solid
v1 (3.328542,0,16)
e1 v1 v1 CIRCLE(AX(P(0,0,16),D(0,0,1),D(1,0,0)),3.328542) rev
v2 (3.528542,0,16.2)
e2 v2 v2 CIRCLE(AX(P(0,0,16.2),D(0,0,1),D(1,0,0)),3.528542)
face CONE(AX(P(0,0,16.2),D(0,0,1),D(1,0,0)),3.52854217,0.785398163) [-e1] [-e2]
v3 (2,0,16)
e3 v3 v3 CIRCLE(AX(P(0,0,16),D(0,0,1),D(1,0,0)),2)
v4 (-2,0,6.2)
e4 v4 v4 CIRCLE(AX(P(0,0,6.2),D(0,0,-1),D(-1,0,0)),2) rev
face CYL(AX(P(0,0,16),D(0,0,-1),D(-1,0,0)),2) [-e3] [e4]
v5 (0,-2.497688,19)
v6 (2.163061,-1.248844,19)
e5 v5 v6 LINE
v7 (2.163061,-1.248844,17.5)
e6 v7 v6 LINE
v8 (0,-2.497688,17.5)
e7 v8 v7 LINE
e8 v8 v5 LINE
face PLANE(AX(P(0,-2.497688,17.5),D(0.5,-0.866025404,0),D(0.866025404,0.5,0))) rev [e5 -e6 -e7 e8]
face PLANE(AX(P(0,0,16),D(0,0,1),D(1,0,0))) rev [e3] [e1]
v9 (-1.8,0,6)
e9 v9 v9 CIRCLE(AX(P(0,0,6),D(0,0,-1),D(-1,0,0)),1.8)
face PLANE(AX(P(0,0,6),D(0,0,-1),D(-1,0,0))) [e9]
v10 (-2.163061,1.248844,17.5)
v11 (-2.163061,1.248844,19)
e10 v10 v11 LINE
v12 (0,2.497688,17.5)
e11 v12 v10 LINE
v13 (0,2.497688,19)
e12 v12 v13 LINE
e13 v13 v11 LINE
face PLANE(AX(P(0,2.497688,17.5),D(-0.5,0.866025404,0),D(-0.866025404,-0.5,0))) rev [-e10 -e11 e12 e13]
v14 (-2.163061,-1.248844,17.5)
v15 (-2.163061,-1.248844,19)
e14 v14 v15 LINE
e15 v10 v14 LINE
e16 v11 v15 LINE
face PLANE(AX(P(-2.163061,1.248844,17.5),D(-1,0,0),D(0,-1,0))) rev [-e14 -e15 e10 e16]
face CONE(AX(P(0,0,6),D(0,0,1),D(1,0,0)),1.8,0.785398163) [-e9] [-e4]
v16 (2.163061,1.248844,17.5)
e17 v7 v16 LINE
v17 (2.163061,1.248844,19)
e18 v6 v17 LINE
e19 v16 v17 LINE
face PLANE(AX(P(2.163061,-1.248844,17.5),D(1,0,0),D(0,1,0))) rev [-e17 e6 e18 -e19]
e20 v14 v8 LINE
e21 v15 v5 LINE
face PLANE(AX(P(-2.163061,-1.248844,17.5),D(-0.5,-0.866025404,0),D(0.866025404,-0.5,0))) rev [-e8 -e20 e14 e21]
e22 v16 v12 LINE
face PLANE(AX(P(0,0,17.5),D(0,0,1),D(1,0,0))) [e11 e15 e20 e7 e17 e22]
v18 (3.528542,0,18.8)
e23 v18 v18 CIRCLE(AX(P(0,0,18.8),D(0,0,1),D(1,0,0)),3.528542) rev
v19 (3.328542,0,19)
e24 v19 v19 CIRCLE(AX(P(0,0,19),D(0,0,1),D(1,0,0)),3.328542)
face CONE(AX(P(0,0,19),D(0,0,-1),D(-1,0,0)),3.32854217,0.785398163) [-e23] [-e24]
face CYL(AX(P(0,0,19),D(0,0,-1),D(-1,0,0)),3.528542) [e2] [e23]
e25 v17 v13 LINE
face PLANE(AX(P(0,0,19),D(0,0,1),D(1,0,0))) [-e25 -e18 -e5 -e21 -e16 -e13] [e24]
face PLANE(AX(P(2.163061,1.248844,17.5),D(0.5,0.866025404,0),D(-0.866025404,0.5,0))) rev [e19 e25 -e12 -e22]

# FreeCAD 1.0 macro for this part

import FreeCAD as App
import Part
import Sketcher

V = App.Vector
Q = App.Units.Quantity


def edges_at(feature, points):
    """Names of the edges that pass closest to the given points."""
    edges = feature.Shape.Edges
    near = lambda p: min(range(len(edges)), key=lambda i: edges[i].distToShape(Part.Vertex(*p))[0])
    return sorted({f"Edge{near(p) + 1}" for p in points})


def add_polygon(sketch, points):
    """Adds a closed chain of lines whose ends are joined by coincident constraints."""
    first, n = sketch.GeometryCount, len(points)
    for a, b in zip(points, points[1:] + points[:1]):
        sketch.addGeometry(Part.LineSegment(App.Vector(*a, 0), App.Vector(*b, 0)), False)
    for i in range(n):
        sketch.addConstraint(Sketcher.Constraint("Coincident", first + i, 2, first + (i + 1) % n, 1))

doc = App.newDocument("Part")
body = doc.addObject("PartDesign::Body", "Body")

# Sketch on XY plane
sketch1 = body.newObject("Sketcher::SketchObject", "Sketch")
sketch1.AttachmentSupport = (doc.getObject("XY_Plane"), [""])
sketch1.MapMode = "FlatFace"
sketch1.addGeometry(Part.Circle(V(0, 0, 0), V(0, 0, 1), 2), False)
sketch1.addConstraint(Sketcher.Constraint("Coincident", 0, 3, -1, 1))
sketch1.addConstraint(Sketcher.Constraint("Diameter", 0, 4.0))
pad1 = body.newObject("PartDesign::Pad", "Pad")
pad1.Profile = sketch1
pad1.Length = 16

# Sketch on XY plane
sketch2 = body.newObject("Sketcher::SketchObject", "Sketch001")
sketch2.AttachmentSupport = (doc.getObject("XY_Plane"), [""])
sketch2.MapMode = "FlatFace"
sketch2.AttachmentOffset = App.Placement(V(0, 0, 16), App.Rotation())
sketch2.addGeometry(Part.Circle(V(0, 0, 0), V(0, 0, 1), 3.5), False)
sketch2.addConstraint(Sketcher.Constraint("Coincident", 0, 3, -1, 1))
sketch2.addConstraint(Sketcher.Constraint("Diameter", 0, 7.057084))
pad2 = body.newObject("PartDesign::Pad", "Pad001")
pad2.Profile = sketch2
pad2.Length = 3

# Sketch on XY plane
sketch3 = body.newObject("Sketcher::SketchObject", "Sketch002")
sketch3.AttachmentSupport = (doc.getObject("XY_Plane"), [""])
sketch3.MapMode = "FlatFace"
sketch3.AttachmentOffset = App.Placement(V(0, 0, 19), App.Rotation())
add_polygon(sketch3, [(0, 2.5), (-2.2, 1.2), (-2.2, -1.2), (0, -2.5), (2.2, -1.2), (2.2, 1.2)])  # lines 0-5
sketch3.addConstraint(Sketcher.Constraint("Vertical", 1))
sketch3.addConstraint(Sketcher.Constraint("Vertical", 4))
sketch3.addConstraint(Sketcher.Constraint("Symmetric", 0, 2, 3, 2, -1, 1))
sketch3.addConstraint(Sketcher.Constraint("Symmetric", 2, 2, 5, 2, -1, 1))
sketch3.addConstraint(Sketcher.Constraint("PointOnObject", 2, 2, -2))
sketch3.addConstraint(Sketcher.Constraint("Parallel", 2, 5))
sketch3.addConstraint(Sketcher.Constraint("Horizontal", 1, 2, 3, 2))
sketch3.addConstraint(Sketcher.Constraint("Angle", 0, Q("-150 deg")))
sketch3.addConstraint(Sketcher.Constraint("DistanceY", 1, 2, 1, 1, 2.497688))
sketch3.addConstraint(Sketcher.Constraint("DistanceX", 0, 2, -1, 1, 2.163061))
pocket1 = body.newObject("PartDesign::Pocket", "Pocket")
pocket1.Profile = sketch3
pocket1.Length = 1.5
doc.recompute()

chamfer = body.newObject("PartDesign::Chamfer", "Chamfer")
chamfer.Base = (pocket1, edges_at(pocket1, [(-2, 0, 0)]))
chamfer.Size = 0.2
doc.recompute()

chamfer2 = body.newObject("PartDesign::Chamfer", "Chamfer001")
chamfer2.Base = (chamfer, edges_at(chamfer, [(-3.529, 0, 16), (-3.529, 0, 19)]))
chamfer2.Size = 0.2

# Sketch on XY plane
sketch4 = body.newObject("Sketcher::SketchObject", "Sketch003")
sketch4.AttachmentSupport = (doc.getObject("XY_Plane"), [""])
sketch4.MapMode = "FlatFace"
sketch4.addGeometry(Part.Circle(V(0, 0, 0), V(0, 0, 1), 2), False)
sketch4.addConstraint(Sketcher.Constraint("Coincident", 0, 3, -1, 1))
sketch4.addConstraint(Sketcher.Constraint("Diameter", 0, 4.0))
pocket2 = body.newObject("PartDesign::Pocket", "Pocket001")
pocket2.Profile = sketch4
pocket2.Length = 6
pocket2.Reversed = True
doc.recompute()

chamfer3 = body.newObject("PartDesign::Chamfer", "Chamfer002")
chamfer3.Base = (pocket2, edges_at(pocket2, [(-2, 0, 6)]))
chamfer3.Size = 0.2

doc.recompute()
